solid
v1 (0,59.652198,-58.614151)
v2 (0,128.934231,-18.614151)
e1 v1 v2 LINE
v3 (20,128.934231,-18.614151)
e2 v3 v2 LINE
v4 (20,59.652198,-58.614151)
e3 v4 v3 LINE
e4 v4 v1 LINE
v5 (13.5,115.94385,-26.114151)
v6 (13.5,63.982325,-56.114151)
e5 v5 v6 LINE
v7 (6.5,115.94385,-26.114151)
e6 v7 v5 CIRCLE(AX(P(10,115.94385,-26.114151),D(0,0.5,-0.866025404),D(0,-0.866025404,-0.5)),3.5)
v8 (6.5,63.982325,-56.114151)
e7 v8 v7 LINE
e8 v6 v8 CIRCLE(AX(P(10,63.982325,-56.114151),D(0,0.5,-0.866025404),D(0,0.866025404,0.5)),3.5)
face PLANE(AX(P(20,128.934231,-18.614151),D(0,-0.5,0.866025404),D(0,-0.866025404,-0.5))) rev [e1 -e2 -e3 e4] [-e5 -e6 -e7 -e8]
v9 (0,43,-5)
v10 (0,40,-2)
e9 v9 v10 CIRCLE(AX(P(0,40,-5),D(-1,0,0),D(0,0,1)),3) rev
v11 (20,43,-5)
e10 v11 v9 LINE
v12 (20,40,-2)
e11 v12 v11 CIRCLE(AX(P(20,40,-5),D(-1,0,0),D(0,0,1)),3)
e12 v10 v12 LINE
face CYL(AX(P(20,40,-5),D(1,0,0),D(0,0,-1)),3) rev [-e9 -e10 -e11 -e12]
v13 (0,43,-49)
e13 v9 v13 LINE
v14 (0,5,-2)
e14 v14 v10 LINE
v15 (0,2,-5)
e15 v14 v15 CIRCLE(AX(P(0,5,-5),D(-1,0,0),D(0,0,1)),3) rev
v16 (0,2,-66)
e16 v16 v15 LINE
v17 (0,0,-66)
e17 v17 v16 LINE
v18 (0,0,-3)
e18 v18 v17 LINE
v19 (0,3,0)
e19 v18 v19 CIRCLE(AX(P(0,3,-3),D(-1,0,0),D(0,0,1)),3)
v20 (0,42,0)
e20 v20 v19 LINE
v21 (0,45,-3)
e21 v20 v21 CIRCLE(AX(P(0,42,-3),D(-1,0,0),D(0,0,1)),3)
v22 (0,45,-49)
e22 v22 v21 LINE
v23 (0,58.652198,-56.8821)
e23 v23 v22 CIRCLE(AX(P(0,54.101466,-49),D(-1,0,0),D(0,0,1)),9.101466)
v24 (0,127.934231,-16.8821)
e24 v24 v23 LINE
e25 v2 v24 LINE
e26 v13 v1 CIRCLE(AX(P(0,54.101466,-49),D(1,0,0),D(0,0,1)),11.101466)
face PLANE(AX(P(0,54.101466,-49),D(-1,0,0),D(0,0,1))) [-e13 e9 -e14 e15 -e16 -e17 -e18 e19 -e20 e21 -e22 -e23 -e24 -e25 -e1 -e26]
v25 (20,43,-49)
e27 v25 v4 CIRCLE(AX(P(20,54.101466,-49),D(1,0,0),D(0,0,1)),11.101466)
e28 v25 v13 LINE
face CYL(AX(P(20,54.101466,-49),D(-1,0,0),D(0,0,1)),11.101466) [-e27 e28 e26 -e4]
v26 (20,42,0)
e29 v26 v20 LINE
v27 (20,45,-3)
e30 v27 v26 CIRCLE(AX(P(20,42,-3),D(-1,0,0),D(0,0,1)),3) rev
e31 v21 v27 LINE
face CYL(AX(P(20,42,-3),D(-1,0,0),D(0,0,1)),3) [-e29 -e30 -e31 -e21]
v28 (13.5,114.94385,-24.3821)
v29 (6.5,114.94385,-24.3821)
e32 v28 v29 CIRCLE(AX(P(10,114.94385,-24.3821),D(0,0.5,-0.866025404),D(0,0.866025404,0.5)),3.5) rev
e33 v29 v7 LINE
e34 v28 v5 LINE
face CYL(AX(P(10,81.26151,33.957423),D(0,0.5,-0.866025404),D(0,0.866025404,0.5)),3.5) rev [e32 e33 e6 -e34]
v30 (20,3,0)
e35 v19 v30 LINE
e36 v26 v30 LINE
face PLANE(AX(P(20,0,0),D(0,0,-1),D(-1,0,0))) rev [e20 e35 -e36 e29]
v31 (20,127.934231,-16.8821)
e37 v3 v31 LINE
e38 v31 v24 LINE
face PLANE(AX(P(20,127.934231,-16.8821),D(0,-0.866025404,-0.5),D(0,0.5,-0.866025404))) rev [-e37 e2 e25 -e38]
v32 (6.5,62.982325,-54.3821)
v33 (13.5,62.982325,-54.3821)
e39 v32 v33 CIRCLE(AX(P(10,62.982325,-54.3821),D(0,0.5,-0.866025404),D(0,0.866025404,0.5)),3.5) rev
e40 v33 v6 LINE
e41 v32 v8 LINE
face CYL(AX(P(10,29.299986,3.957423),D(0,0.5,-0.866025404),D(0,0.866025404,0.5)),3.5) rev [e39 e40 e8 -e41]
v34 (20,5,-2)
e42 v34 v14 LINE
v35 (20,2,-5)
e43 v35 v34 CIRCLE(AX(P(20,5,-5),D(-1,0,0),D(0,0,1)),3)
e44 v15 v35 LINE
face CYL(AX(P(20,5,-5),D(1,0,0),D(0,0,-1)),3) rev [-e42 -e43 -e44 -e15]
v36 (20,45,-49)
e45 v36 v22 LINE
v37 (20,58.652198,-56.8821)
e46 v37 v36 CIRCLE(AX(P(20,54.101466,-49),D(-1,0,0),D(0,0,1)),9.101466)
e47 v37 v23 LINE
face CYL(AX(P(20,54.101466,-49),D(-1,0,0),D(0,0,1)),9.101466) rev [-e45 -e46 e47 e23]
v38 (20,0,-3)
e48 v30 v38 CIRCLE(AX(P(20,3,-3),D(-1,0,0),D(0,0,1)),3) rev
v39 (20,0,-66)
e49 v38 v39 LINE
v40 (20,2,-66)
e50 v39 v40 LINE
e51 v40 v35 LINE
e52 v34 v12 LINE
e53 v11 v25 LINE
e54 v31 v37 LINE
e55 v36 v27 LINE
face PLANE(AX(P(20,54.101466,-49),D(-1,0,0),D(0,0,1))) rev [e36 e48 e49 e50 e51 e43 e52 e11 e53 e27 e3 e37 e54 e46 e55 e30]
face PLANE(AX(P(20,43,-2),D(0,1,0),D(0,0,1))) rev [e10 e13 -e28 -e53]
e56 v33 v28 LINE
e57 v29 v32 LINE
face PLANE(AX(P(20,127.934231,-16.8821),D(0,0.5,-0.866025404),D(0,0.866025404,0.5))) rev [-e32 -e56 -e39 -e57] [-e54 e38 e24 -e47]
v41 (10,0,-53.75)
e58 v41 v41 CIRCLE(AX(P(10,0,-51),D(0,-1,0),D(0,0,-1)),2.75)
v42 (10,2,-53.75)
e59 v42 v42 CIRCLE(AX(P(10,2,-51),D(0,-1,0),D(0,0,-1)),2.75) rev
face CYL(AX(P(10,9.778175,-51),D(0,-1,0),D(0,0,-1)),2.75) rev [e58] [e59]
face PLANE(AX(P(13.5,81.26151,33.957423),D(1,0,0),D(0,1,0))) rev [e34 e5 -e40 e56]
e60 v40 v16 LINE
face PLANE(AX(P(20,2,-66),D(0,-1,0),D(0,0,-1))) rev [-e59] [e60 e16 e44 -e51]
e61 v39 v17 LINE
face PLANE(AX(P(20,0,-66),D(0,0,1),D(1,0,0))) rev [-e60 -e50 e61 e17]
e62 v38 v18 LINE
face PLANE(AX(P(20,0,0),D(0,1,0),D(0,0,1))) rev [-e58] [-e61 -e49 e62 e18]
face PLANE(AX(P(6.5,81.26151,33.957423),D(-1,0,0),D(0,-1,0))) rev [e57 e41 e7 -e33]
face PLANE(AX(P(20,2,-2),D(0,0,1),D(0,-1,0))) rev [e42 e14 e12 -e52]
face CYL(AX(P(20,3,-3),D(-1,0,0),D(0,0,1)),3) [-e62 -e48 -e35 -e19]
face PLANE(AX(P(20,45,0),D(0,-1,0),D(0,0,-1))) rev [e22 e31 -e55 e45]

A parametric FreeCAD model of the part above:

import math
import FreeCAD as App
import Part
import Sketcher
Q = App.Units.Quantity


def edges_at(feature, points):
    """Names of the edges that pass closest to the given points."""
    edges = feature.Shape.Edges
    near = lambda p: min(range(len(edges)), key=lambda i: edges[i].distToShape(Part.Vertex(*p))[0])
    return sorted({f"Edge{near(p) + 1}" for p in points})

doc = App.newDocument("Part")
body = doc.addObject("PartDesign::Body", "Body")

# Sketch on YZ plane
sketch1 = body.newObject("Sketcher::SketchObject", "Sketch")
sketch1.AttachmentSupport = (doc.getObject("YZ_Plane"), [""])
sketch1.MapMode = "FlatFace"
sketch1.addGeometry(Part.LineSegment(App.Vector(0, 0, 0), App.Vector(0, -66, 0)), False)
sketch1.addGeometry(Part.LineSegment(App.Vector(0, -66, 0), App.Vector(2, -66, 0)), False)
sketch1.addGeometry(Part.LineSegment(App.Vector(2, -66, 0), App.Vector(2, -2, 0)), False)
sketch1.addGeometry(Part.LineSegment(App.Vector(2, -2, 0), App.Vector(43, -2, 0)), False)
sketch1.addGeometry(Part.LineSegment(App.Vector(43, -2, 0), App.Vector(43, -49, 0)), False)
sketch1.addGeometry(Part.ArcOfCircle(Part.Circle(App.Vector(54.101466, -49, 0), App.Vector(0, 0, 1), 11.101466), math.radians(180), math.radians(300)), False)
sketch1.addGeometry(Part.LineSegment(App.Vector(59.652198, -58.614151, 0), App.Vector(128.934231, -18.614151, 0)), False)
sketch1.addGeometry(Part.LineSegment(App.Vector(128.934231, -18.614151, 0), App.Vector(127.934231, -16.8821, 0)), False)
sketch1.addGeometry(Part.LineSegment(App.Vector(127.934231, -16.8821, 0), App.Vector(58.652198, -56.8821, 0)), False)
sketch1.addGeometry(Part.ArcOfCircle(Part.Circle(App.Vector(54.101466, -49, 0), App.Vector(0, 0, 1), 9.101466), math.radians(-180), math.radians(-60)), False)
sketch1.addGeometry(Part.LineSegment(App.Vector(45, -49, 0), App.Vector(45, 0, 0)), False)
sketch1.addGeometry(Part.LineSegment(App.Vector(45, 0, 0), App.Vector(0, 0, 0)), False)
sketch1.addConstraint(Sketcher.Constraint("Coincident", 0, 2, 1, 1))
sketch1.addConstraint(Sketcher.Constraint("Coincident", 1, 2, 2, 1))
sketch1.addConstraint(Sketcher.Constraint("Coincident", 2, 2, 3, 1))
sketch1.addConstraint(Sketcher.Constraint("Coincident", 3, 2, 4, 1))
sketch1.addConstraint(Sketcher.Constraint("Tangent", 4, 2, 5, 1))
sketch1.addConstraint(Sketcher.Constraint("Tangent", 5, 2, 6, 1))
sketch1.addConstraint(Sketcher.Constraint("Coincident", 6, 2, 7, 1))
sketch1.addConstraint(Sketcher.Constraint("Coincident", 7, 2, 8, 1))
sketch1.addConstraint(Sketcher.Constraint("Tangent", 8, 2, 9, 2))
sketch1.addConstraint(Sketcher.Constraint("Tangent", 9, 1, 10, 1))
sketch1.addConstraint(Sketcher.Constraint("Coincident", 10, 2, 11, 1))
sketch1.addConstraint(Sketcher.Constraint("Coincident", 11, 2, 0, 1))
sketch1.addConstraint(Sketcher.Constraint("Vertical", 0))
sketch1.addConstraint(Sketcher.Constraint("Horizontal", 1))
sketch1.addConstraint(Sketcher.Constraint("Vertical", 2))
sketch1.addConstraint(Sketcher.Constraint("Horizontal", 3))
sketch1.addConstraint(Sketcher.Constraint("Vertical", 4))
sketch1.addConstraint(Sketcher.Constraint("Vertical", 10))
sketch1.addConstraint(Sketcher.Constraint("Horizontal", 11))
sketch1.addConstraint(Sketcher.Constraint("Coincident", 11, 2, -1, 1))
sketch1.addConstraint(Sketcher.Constraint("Coincident", 9, 3, 5, 3))
sketch1.addConstraint(Sketcher.Constraint("Perpendicular", 6, 7))
sketch1.addConstraint(Sketcher.Constraint("Perpendicular", 7, 8))
sketch1.addConstraint(Sketcher.Constraint("DistanceX", 1, 1, 1, 2, Q("2 mm")))
sketch1.addConstraint(Sketcher.Constraint("DistanceX", 3, 1, 3, 2, Q("41 mm")))
sketch1.addConstraint(Sketcher.Constraint("DistanceX", 11, 2, 11, 1, Q("45 mm")))
sketch1.addConstraint(Sketcher.Constraint("DistanceY", 0, 2, 0, 1, Q("66 mm")))
sketch1.addConstraint(Sketcher.Constraint("DistanceY", 2, 1, 2, 2, Q("64 mm")))
sketch1.addConstraint(Sketcher.Constraint("DistanceY", 4, 2, 4, 1, Q("47 mm")))
sketch1.addConstraint(Sketcher.Constraint("Angle", 6, Q("30 deg")))
sketch1.addConstraint(Sketcher.Constraint("Distance", 6, Q("80 mm")))
sketch1.addConstraint(Sketcher.Constraint("Radius", 5, Q("11.101466 mm")))
pad1 = body.newObject("PartDesign::Pad", "Pad")
pad1.Profile = sketch1
pad1.Length = 20
doc.recompute()

fillet = body.newObject("PartDesign::Fillet", "Fillet")
fillet.Base = (pad1, edges_at(pad1, [
    (10, 45, 0),
    (10, 43, -2),
    (10, 2, -2),
    (10, 0, 0),
]))
fillet.Radius = 3

# Sketch on XZ plane
sketch2 = body.newObject("Sketcher::SketchObject", "Sketch001")
sketch2.AttachmentSupport = (doc.getObject("XZ_Plane"), [""])
sketch2.MapMode = "FlatFace"
sketch2.addGeometry(Part.Circle(App.Vector(10, -51, 0), App.Vector(0, 0, 1), 2.75), False)
sketch2.addConstraint(Sketcher.Constraint("Diameter", 0, Q("5.5 mm")))
sketch2.addConstraint(Sketcher.Constraint("DistanceX", -1, 1, 0, 3, Q("10 mm")))
sketch2.addConstraint(Sketcher.Constraint("DistanceY", 0, 3, -1, 1, Q("51 mm")))
pocket1 = body.newObject("PartDesign::Pocket", "Pocket")
pocket1.Profile = sketch2
pocket1.Length = 2

# Sketch on an angled plane
sketch3 = body.newObject("Sketcher::SketchObject", "Sketch002")
sketch3.Placement = App.Placement(App.Vector(0, 40.293722, -69.790773), App.Rotation(App.Vector(-1, 0, 0), App.Vector(0, 0.866025404, 0.5), App.Vector(0, 0.5, -0.866025404), "ZXY"))
sketch3.addGeometry(Part.LineSegment(App.Vector(-13.5, 87.353244, 0), App.Vector(-13.5, 27.353244, 0)), False)
sketch3.addGeometry(Part.ArcOfCircle(Part.Circle(App.Vector(-10, 27.353244, 0), App.Vector(0, 0, 1), 3.5), math.radians(180), math.radians(360)), False)
sketch3.addGeometry(Part.LineSegment(App.Vector(-6.5, 27.353244, 0), App.Vector(-6.5, 87.353244, 0)), False)
sketch3.addGeometry(Part.ArcOfCircle(Part.Circle(App.Vector(-10, 87.353244, 0), App.Vector(0, 0, 1), 3.5), math.radians(0), math.radians(180)), False)
sketch3.addConstraint(Sketcher.Constraint("Tangent", 0, 2, 1, 1))
sketch3.addConstraint(Sketcher.Constraint("Tangent", 1, 2, 2, 1))
sketch3.addConstraint(Sketcher.Constraint("Tangent", 2, 2, 3, 1))
sketch3.addConstraint(Sketcher.Constraint("Tangent", 3, 2, 0, 1))
sketch3.addConstraint(Sketcher.Constraint("Vertical", 0))
sketch3.addConstraint(Sketcher.Constraint("Vertical", 2))
sketch3.addConstraint(Sketcher.Constraint("Radius", 1, Q("3.5 mm")))
sketch3.addConstraint(Sketcher.Constraint("DistanceY", 0, 2, 0, 1, Q("60 mm")))
sketch3.addConstraint(Sketcher.Constraint("DistanceX", 1, 3, -1, 1, Q("10 mm")))
sketch3.addConstraint(Sketcher.Constraint("DistanceY", -1, 1, 1, 3, Q("27.353244 mm")))
pocket2 = body.newObject("PartDesign::Pocket", "Pocket001")
pocket2.Profile = sketch3
pocket2.Length = 2

doc.recompute()
